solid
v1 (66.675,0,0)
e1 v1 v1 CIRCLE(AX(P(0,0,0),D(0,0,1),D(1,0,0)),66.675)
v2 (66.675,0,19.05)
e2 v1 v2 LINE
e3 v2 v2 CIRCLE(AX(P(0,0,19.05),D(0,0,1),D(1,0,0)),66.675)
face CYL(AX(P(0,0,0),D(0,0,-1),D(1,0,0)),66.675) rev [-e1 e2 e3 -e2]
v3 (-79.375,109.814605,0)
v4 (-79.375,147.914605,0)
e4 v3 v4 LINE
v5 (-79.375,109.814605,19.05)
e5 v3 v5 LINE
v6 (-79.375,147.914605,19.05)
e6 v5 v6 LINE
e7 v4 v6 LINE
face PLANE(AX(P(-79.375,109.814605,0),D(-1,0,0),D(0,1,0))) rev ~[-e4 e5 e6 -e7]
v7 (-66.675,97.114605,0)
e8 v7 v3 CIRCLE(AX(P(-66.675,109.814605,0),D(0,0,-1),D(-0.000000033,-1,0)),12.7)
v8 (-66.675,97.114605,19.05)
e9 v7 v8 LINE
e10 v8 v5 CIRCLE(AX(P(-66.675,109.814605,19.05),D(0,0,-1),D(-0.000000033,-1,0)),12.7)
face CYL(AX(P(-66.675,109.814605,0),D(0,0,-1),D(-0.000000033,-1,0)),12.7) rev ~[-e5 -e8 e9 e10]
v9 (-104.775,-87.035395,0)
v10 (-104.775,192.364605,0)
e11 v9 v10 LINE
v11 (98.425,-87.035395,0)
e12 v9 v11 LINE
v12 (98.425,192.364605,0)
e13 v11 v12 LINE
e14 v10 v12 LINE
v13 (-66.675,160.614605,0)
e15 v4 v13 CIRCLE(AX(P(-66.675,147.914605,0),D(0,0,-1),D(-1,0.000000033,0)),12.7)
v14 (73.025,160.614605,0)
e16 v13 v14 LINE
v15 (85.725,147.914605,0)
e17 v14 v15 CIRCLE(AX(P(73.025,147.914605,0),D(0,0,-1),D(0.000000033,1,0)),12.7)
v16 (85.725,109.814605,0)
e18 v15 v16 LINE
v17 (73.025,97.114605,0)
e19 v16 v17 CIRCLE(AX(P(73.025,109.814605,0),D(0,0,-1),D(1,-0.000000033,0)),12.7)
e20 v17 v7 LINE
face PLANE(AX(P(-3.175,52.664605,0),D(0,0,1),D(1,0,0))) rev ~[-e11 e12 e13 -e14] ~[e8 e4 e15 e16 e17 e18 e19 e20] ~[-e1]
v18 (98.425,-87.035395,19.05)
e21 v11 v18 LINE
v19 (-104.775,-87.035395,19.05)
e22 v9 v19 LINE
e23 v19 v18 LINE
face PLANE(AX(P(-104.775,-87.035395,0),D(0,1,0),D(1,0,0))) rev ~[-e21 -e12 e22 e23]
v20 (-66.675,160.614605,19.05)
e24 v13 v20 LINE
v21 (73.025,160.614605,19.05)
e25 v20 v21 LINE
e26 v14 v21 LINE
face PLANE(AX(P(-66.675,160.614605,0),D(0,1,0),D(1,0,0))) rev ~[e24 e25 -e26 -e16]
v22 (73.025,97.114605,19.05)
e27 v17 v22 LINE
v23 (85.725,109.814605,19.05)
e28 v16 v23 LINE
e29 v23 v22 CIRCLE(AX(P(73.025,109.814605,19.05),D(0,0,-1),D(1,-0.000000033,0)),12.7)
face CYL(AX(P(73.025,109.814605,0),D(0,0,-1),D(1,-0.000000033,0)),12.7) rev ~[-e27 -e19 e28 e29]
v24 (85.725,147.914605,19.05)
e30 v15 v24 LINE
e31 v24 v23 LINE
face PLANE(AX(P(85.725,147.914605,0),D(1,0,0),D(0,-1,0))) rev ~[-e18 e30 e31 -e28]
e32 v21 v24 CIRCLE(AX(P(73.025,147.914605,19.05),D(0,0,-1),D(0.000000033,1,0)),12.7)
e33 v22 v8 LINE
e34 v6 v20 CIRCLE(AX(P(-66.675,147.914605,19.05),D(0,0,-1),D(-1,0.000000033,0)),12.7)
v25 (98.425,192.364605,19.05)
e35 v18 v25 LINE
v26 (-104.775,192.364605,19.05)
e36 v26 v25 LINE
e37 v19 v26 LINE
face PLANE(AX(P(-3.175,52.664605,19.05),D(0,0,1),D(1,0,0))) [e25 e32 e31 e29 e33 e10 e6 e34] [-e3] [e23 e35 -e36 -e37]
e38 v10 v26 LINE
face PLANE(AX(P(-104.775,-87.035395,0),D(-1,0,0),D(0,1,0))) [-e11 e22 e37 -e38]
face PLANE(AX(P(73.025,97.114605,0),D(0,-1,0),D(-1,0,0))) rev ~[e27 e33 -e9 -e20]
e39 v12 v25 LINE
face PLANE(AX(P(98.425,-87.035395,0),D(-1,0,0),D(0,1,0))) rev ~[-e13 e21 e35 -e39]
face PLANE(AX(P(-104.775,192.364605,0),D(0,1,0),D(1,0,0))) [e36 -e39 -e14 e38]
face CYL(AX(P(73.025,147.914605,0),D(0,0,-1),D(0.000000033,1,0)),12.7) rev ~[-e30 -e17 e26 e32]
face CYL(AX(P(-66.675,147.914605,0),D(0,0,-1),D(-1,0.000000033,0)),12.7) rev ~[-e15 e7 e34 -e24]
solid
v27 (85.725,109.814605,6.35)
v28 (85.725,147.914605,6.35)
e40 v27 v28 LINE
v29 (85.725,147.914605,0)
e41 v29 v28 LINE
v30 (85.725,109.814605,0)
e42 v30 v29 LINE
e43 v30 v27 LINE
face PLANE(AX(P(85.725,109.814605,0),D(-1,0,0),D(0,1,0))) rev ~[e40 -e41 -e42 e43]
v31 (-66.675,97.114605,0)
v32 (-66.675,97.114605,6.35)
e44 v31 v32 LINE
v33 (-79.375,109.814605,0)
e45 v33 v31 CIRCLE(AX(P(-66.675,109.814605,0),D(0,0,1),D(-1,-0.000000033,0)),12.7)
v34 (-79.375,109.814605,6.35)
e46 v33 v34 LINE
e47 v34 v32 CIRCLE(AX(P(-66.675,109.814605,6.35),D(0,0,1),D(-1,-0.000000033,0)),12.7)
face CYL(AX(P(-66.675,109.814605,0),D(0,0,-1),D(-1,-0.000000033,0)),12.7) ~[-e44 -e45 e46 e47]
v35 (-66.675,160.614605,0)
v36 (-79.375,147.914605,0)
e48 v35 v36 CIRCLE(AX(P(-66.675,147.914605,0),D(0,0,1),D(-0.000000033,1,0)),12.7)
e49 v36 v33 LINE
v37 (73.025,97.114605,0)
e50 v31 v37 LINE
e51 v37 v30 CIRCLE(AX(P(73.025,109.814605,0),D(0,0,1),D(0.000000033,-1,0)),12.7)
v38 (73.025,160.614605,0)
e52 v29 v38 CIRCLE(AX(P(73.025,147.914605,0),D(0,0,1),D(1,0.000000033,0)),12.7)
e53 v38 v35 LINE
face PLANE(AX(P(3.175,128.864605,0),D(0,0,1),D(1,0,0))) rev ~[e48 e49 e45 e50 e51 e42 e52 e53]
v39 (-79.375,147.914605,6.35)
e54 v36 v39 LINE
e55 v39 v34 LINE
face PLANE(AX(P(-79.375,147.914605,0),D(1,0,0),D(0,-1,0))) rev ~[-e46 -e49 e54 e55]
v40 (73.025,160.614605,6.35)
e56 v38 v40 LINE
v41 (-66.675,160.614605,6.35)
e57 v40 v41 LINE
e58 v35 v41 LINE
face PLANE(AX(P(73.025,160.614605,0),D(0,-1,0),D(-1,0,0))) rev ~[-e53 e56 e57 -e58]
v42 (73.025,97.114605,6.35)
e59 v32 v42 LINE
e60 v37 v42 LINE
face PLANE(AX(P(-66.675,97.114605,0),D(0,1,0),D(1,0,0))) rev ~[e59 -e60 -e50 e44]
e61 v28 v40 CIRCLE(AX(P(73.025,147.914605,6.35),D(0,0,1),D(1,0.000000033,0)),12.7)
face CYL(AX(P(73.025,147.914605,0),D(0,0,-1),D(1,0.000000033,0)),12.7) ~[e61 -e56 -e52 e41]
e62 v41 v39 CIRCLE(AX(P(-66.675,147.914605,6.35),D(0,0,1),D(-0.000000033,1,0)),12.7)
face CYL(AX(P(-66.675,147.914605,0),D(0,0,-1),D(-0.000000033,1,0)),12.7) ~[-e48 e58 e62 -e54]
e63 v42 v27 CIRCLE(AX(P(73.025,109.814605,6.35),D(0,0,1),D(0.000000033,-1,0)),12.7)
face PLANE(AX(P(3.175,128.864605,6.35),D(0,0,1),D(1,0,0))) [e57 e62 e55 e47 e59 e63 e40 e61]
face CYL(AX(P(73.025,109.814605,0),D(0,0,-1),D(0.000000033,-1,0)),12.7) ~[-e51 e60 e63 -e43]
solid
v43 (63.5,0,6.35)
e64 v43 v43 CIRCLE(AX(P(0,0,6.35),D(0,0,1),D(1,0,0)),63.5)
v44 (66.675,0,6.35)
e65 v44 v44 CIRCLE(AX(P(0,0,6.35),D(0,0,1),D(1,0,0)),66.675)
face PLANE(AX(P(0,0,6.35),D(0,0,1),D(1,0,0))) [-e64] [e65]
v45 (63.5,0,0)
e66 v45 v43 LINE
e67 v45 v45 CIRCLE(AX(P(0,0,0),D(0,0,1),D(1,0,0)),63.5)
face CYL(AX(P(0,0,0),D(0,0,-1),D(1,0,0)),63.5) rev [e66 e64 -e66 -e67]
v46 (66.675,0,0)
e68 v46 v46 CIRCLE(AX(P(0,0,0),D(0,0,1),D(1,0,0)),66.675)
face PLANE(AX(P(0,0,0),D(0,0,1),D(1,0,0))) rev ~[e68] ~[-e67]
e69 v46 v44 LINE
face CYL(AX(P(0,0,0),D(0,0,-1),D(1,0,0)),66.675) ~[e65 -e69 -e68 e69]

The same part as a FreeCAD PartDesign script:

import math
import FreeCAD as App
import Part
import Sketcher
from FreeCAD import Vector
Q = App.Units.Quantity


def add_polygon(sketch, points):
    """Adds a closed chain of lines whose ends are joined by coincident constraints."""
    first, n = sketch.GeometryCount, len(points)
    for a, b in zip(points, points[1:] + points[:1]):
        sketch.addGeometry(Part.LineSegment(App.Vector(*a, 0), App.Vector(*b, 0)), False)
    for i in range(n):
        sketch.addConstraint(Sketcher.Constraint("Coincident", first + i, 2, first + (i + 1) % n, 1))

doc = App.newDocument("Part")
body = doc.addObject("PartDesign::Body", "Body")
body.AllowCompound = True

# Sketch on XY plane
sketch1 = doc.addObject("Sketcher::SketchObject", "Sketch")
body.addObject(sketch1)
sketch1.AttachmentSupport = (doc.XY_Plane, [""])
sketch1.MapMode = "FlatFace"
sketch1.addGeometry(Part.Circle(Vector(0, 0, 0), Vector(0, 0, 1), 66.675), False)
sketch1.addGeometry(Part.Circle(Vector(0, 0, 0), Vector(0, 0, 1), 63.5), False)
sketch1.addGeometry(Part.LineSegment(Vector(73.025, 160.614605, 0), Vector(-66.675, 160.614605, 0)), False)
sketch1.addGeometry(Part.ArcOfCircle(Part.Circle(Vector(-66.675, 147.914605, 0), Vector(0, 0, 1), 12.7), math.radians(90.000002), math.radians(179.999998)), False)
sketch1.addGeometry(Part.LineSegment(Vector(-79.375, 147.914605, 0), Vector(-79.375, 109.814605, 0)), False)
sketch1.addGeometry(Part.ArcOfCircle(Part.Circle(Vector(-66.675, 109.814605, 0), Vector(0, 0, 1), 12.7), math.radians(-179.999998), math.radians(-90.000002)), False)
sketch1.addGeometry(Part.LineSegment(Vector(-66.675, 97.114605, 0), Vector(73.025, 97.114605, 0)), False)
sketch1.addGeometry(Part.ArcOfCircle(Part.Circle(Vector(73.025, 109.814605, 0), Vector(0, 0, 1), 12.7), math.radians(-89.999998), math.radians(-0.000002)), False)
sketch1.addGeometry(Part.LineSegment(Vector(85.725, 109.814605, 0), Vector(85.725, 147.914605, 0)), False)
sketch1.addGeometry(Part.ArcOfCircle(Part.Circle(Vector(73.025, 147.914605, 0), Vector(0, 0, 1), 12.7), math.radians(0.000002), math.radians(89.999998)), False)
sketch1.addConstraint(Sketcher.Constraint("Tangent", 2, 2, 3, 1))
sketch1.addConstraint(Sketcher.Constraint("Tangent", 3, 2, 4, 1))
sketch1.addConstraint(Sketcher.Constraint("Tangent", 4, 2, 5, 1))
sketch1.addConstraint(Sketcher.Constraint("Tangent", 5, 2, 6, 1))
sketch1.addConstraint(Sketcher.Constraint("Tangent", 6, 2, 7, 1))
sketch1.addConstraint(Sketcher.Constraint("Tangent", 7, 2, 8, 1))
sketch1.addConstraint(Sketcher.Constraint("Tangent", 8, 2, 9, 1))
sketch1.addConstraint(Sketcher.Constraint("Tangent", 9, 2, 2, 1))
sketch1.addConstraint(Sketcher.Constraint("Horizontal", 2))
sketch1.addConstraint(Sketcher.Constraint("Vertical", 4))
sketch1.addConstraint(Sketcher.Constraint("Horizontal", 6))
sketch1.addConstraint(Sketcher.Constraint("Vertical", 8))
sketch1.addConstraint(Sketcher.Constraint("Coincident", 0, 3, -1, 1))
sketch1.addConstraint(Sketcher.Constraint("Coincident", 1, 3, -1, 1))
sketch1.addConstraint(Sketcher.Constraint("Equal", 3, 5))
sketch1.addConstraint(Sketcher.Constraint("Equal", 5, 7))
sketch1.addConstraint(Sketcher.Constraint("Equal", 7, 9))
sketch1.addConstraint(Sketcher.Constraint("Diameter", 1, Q("5 in")))
sketch1.addConstraint(Sketcher.Constraint("Radius", 3, Q("0.5 in")))
sketch1.addConstraint(Sketcher.Constraint("Diameter", 0, Q("5.25 in")))
sketch1.addConstraint(Sketcher.Constraint("DistanceX", 2, 2, 2, 1, Q("5.5 in")))
sketch1.addConstraint(Sketcher.Constraint("DistanceY", 4, 2, 4, 1, Q("1.5 in")))
sketch1.addConstraint(Sketcher.Constraint("DistanceX", 3, 3, -1, 1, Q("2.625 in")))
sketch1.addConstraint(Sketcher.Constraint("DistanceY", -1, 1, 3, 3, 147.914605))
pad1 = doc.addObject("PartDesign::Pad", "Pad")
body.addObject(pad1)
pad1.Profile = sketch1
pad1.Length = Q("0.25 in")
body2 = doc.addObject("PartDesign::Body", "Body001")

# Sketch on XY plane
sketch2 = doc.addObject("Sketcher::SketchObject", "Sketch001")
body2.addObject(sketch2)
sketch2.AttachmentSupport = (doc.getObject("XY_Plane001"), [""])
sketch2.MapMode = "FlatFace"
add_polygon(sketch2, [(-104.775, 192.364605), (-104.775, -87.035395), (98.425, -87.035395), (98.425, 192.364605)])  # lines 0-3
sketch2.addGeometry(Part.Circle(Vector(0, 0, 0), Vector(0, 0, 1), 66.675), False)  # 4
sketch2.addGeometry(Part.LineSegment(Vector(-79.375, 109.814605, 0), Vector(-79.375, 147.914605, 0)), False)  # 5
sketch2.addGeometry(Part.ArcOfCircle(Part.Circle(Vector(-66.675, 147.914605, 0), Vector(0, 0, 1), 12.7), math.radians(90.000002), math.radians(179.999998)), False)  # 6
sketch2.addGeometry(Part.LineSegment(Vector(-66.675, 160.614605, 0), Vector(73.025, 160.614605, 0)), False)  # 7
sketch2.addGeometry(Part.ArcOfCircle(Part.Circle(Vector(73.025, 147.914605, 0), Vector(0, 0, 1), 12.7), math.radians(0.000002), math.radians(89.999998)), False)  # 8
sketch2.addGeometry(Part.LineSegment(Vector(85.725, 147.914605, 0), Vector(85.725, 109.814605, 0)), False)  # 9
sketch2.addGeometry(Part.ArcOfCircle(Part.Circle(Vector(73.025, 109.814605, 0), Vector(0, 0, 1), 12.7), math.radians(-89.999998), math.radians(-0.000002)), False)  # 10
sketch2.addGeometry(Part.LineSegment(Vector(73.025, 97.114605, 0), Vector(-66.675, 97.114605, 0)), False)  # 11
sketch2.addGeometry(Part.ArcOfCircle(Part.Circle(Vector(-66.675, 109.814605, 0), Vector(0, 0, 1), 12.7), math.radians(-179.999998), math.radians(-90.000002)), False)  # 12
sketch2.addConstraint(Sketcher.Constraint("Tangent", 5, 2, 6, 2))
sketch2.addConstraint(Sketcher.Constraint("Tangent", 6, 1, 7, 1))
sketch2.addConstraint(Sketcher.Constraint("Tangent", 7, 2, 8, 2))
sketch2.addConstraint(Sketcher.Constraint("Tangent", 8, 1, 9, 1))
sketch2.addConstraint(Sketcher.Constraint("Tangent", 9, 2, 10, 2))
sketch2.addConstraint(Sketcher.Constraint("Tangent", 10, 1, 11, 1))
sketch2.addConstraint(Sketcher.Constraint("Tangent", 11, 2, 12, 2))
sketch2.addConstraint(Sketcher.Constraint("Tangent", 12, 1, 5, 1))
sketch2.addConstraint(Sketcher.Constraint("Vertical", 0))
sketch2.addConstraint(Sketcher.Constraint("Horizontal", 1))
sketch2.addConstraint(Sketcher.Constraint("Vertical", 2))
sketch2.addConstraint(Sketcher.Constraint("Horizontal", 3))
sketch2.addConstraint(Sketcher.Constraint("Vertical", 5))
sketch2.addConstraint(Sketcher.Constraint("Horizontal", 7))
sketch2.addConstraint(Sketcher.Constraint("Vertical", 9))
sketch2.addConstraint(Sketcher.Constraint("Horizontal", 11))
sketch2.addConstraint(Sketcher.Constraint("Coincident", 4, 3, -1, 1))
sketch2.addConstraint(Sketcher.Constraint("Equal", 6, 8))
sketch2.addConstraint(Sketcher.Constraint("Equal", 8, 10))
sketch2.addConstraint(Sketcher.Constraint("Equal", 10, 12))
sketch2.addConstraint(Sketcher.Constraint("Radius", 6, Q("0.5 in")))
sketch2.addConstraint(Sketcher.Constraint("Diameter", 4, Q("5.25 in")))
sketch2.addConstraint(Sketcher.Constraint("DistanceX", 1, 1, 1, 2, Q("8 in")))
sketch2.addConstraint(Sketcher.Constraint("DistanceY", 0, 2, 0, 1, Q("11 in")))
sketch2.addConstraint(Sketcher.Constraint("DistanceX", 7, 1, 7, 2, Q("5.5 in")))
sketch2.addConstraint(Sketcher.Constraint("DistanceY", 5, 1, 5, 2, Q("1.5 in")))
sketch2.addConstraint(Sketcher.Constraint("DistanceX", 0, 2, 10, 3, Q("7 in")))
sketch2.addConstraint(Sketcher.Constraint("DistanceY", 0, 2, 12, 3, Q("7.75 in")))
sketch2.addConstraint(Sketcher.Constraint("DistanceX", 6, 3, -1, 1, Q("2.625 in")))
sketch2.addConstraint(Sketcher.Constraint("DistanceY", -1, 1, 6, 3, 147.914605))
pad2 = doc.addObject("PartDesign::Pad", "Pad001")
body2.addObject(pad2)
pad2.Profile = sketch2
pad2.Length = Q("0.75 in")

doc.recompute()
